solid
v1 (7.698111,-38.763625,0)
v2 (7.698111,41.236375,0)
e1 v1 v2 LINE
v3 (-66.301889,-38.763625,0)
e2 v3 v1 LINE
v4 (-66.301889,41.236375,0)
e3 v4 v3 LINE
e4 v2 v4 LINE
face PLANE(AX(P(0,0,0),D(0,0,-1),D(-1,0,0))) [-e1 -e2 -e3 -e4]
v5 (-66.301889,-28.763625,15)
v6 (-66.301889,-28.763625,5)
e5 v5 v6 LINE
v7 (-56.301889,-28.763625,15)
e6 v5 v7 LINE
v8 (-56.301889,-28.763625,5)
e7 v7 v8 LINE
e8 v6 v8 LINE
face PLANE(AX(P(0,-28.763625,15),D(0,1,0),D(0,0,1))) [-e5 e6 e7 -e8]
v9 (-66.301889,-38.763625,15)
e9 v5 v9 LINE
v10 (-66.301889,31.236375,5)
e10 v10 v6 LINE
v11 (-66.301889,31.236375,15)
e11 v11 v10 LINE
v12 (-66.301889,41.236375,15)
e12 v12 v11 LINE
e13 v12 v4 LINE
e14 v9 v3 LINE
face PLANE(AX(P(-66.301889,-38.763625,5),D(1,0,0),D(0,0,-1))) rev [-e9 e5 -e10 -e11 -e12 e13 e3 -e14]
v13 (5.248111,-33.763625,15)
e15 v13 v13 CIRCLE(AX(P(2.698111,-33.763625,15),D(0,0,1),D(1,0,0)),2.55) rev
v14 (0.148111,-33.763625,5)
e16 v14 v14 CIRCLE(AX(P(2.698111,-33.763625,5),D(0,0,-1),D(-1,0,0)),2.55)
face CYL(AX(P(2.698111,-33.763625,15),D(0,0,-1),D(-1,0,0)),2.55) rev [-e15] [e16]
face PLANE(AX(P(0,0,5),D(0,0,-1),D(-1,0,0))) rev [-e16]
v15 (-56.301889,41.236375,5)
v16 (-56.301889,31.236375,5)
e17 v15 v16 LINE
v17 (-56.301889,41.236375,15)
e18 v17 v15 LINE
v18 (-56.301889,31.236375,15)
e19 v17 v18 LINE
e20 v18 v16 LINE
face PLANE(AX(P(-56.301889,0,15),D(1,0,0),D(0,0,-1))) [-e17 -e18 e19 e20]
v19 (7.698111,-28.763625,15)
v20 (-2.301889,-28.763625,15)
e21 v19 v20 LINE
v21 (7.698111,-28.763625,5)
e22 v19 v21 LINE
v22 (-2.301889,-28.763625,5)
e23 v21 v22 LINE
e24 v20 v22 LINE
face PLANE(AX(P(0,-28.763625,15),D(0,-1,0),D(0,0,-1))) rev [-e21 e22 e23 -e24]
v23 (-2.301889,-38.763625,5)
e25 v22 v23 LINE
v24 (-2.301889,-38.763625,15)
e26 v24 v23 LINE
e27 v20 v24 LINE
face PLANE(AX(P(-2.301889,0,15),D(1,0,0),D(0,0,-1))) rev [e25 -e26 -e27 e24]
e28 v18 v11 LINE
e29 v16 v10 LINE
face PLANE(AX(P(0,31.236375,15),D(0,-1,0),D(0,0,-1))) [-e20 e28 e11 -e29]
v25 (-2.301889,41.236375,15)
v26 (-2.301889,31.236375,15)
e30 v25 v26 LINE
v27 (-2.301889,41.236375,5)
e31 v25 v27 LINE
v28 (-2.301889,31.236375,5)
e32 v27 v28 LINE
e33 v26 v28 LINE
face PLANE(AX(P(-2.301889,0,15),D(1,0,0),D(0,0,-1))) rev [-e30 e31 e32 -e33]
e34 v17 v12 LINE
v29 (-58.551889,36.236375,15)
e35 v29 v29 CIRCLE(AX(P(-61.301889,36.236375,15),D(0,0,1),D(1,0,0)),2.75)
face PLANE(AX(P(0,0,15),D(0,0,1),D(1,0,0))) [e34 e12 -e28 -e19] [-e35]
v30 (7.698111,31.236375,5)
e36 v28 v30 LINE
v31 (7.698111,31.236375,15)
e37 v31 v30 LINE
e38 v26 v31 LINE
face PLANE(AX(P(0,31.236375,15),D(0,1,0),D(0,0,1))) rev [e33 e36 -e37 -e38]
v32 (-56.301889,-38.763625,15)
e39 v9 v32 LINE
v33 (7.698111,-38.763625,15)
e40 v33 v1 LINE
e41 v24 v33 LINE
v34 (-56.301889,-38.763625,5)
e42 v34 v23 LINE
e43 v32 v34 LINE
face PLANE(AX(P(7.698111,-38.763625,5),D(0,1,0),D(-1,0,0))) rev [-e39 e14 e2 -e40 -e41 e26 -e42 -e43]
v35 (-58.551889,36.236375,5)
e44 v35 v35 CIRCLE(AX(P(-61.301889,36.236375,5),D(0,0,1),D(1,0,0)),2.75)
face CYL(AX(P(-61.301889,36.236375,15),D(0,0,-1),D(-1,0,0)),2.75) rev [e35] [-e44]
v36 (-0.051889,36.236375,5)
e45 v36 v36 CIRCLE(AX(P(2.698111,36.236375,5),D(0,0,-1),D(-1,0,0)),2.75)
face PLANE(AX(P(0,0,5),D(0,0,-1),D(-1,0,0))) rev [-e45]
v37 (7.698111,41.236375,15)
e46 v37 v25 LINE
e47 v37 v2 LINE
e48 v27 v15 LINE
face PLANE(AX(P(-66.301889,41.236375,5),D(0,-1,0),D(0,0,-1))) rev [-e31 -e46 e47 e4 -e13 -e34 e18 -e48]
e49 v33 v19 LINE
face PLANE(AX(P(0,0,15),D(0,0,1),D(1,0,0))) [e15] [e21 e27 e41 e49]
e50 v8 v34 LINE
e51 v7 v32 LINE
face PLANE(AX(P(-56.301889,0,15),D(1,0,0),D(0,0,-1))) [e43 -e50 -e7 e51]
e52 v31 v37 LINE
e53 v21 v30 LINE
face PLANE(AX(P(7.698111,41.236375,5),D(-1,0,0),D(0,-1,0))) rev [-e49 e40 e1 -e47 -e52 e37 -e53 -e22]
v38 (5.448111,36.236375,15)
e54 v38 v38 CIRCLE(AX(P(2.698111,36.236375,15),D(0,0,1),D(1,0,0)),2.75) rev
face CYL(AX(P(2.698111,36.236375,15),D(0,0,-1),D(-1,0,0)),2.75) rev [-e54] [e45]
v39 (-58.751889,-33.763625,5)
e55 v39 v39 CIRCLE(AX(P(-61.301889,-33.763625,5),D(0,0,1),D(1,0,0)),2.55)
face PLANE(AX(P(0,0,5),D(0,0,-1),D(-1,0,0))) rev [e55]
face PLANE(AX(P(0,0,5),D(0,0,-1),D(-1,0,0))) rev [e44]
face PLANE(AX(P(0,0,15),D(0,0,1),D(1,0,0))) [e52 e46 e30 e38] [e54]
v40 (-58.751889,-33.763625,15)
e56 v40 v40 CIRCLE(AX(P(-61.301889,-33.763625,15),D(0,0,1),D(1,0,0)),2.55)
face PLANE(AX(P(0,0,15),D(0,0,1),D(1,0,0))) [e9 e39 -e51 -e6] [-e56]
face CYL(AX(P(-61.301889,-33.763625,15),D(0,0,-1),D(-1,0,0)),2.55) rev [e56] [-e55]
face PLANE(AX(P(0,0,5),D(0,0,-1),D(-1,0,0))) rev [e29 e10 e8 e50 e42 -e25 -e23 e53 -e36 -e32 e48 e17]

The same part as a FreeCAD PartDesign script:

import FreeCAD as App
import Part
import Sketcher
from FreeCAD import Vector


def add_polygon(sketch, points):
    """Adds a closed chain of lines whose ends are joined by coincident constraints."""
    first, n = sketch.GeometryCount, len(points)
    for a, b in zip(points, points[1:] + points[:1]):
        sketch.addGeometry(Part.LineSegment(App.Vector(*a, 0), App.Vector(*b, 0)), False)
    for i in range(n):
        sketch.addConstraint(Sketcher.Constraint("Coincident", first + i, 2, first + (i + 1) % n, 1))

doc = App.newDocument("Part")
body = doc.addObject("PartDesign::Body", "Body")

sketch1 = body.newObject("Sketcher::SketchObject", "Sketch")
sketch1.AttachmentSupport = (doc.getObject("XY_Plane"), [""])
sketch1.MapMode = "FlatFace"
add_polygon(sketch1, [(-66, 41), (-66, -39), (8, -39), (8, 41)])
sketch1.addConstraint([
    Sketcher.Constraint("Vertical", 0),
    Sketcher.Constraint("Horizontal", 1),
    Sketcher.Constraint("Vertical", 2),
    Sketcher.Constraint("Horizontal", 3),
    Sketcher.Constraint("DistanceX", 1, 1, 1, 2, 74.0),
    Sketcher.Constraint("DistanceY", 0, 2, 0, 1, 80.0),
    Sketcher.Constraint("DistanceX", 0, 2, -1, 1, 66.301889),
    Sketcher.Constraint("DistanceY", 0, 2, -1, 1, 38.763625),
])
pad1 = body.newObject("PartDesign::Pad", "Pad")
pad1.Profile = sketch1
pad1.Length = 5

sketch2 = body.newObject("Sketcher::SketchObject", "Sketch001")
sketch2.AttachmentSupport = (doc.getObject("XY_Plane"), [""])
sketch2.MapMode = "FlatFace"
sketch2.AttachmentOffset = App.Placement(Vector(0, 0, 5), App.Rotation())
add_polygon(sketch2, [(-66.3, 41.2), (-66.3, 31.2), (-56.3, 31.2), (-56.3, 41.2)])
sketch2.addGeometry(Part.Circle(Vector(-61.3, 36.2, 0), Vector(0, 0, 1), 2.8), False)
add_polygon(sketch2, [(-2.3, 41.2), (-2.3, 31.2), (7.7, 31.2), (7.7, 41.2)])
sketch2.addGeometry(Part.Circle(Vector(2.7, 36.2, 0), Vector(0, 0, 1), 2.8), False)
add_polygon(sketch2, [(-2.3, -28.8), (-2.3, -38.8), (7.7, -38.8), (7.7, -28.8)])
sketch2.addGeometry(Part.Circle(Vector(2.7, -33.8, 0), Vector(0, 0, 1), 2.5), False)
add_polygon(sketch2, [(-66.3, -28.8), (-66.3, -38.8), (-56.3, -38.8), (-56.3, -28.8)])
sketch2.addGeometry(Part.Circle(Vector(-61.3, -33.8, 0), Vector(0, 0, 1), 2.5), False)
sketch2.addConstraint([
    Sketcher.Constraint("Vertical", 0),
    Sketcher.Constraint("Horizontal", 1),
    Sketcher.Constraint("Vertical", 2),
    Sketcher.Constraint("Horizontal", 3),
    Sketcher.Constraint("Vertical", 5),
    Sketcher.Constraint("Horizontal", 6),
    Sketcher.Constraint("Vertical", 7),
    Sketcher.Constraint("Horizontal", 8),
    Sketcher.Constraint("Vertical", 10),
    Sketcher.Constraint("Horizontal", 11),
    Sketcher.Constraint("Vertical", 12),
    Sketcher.Constraint("Horizontal", 13),
    Sketcher.Constraint("Vertical", 15),
    Sketcher.Constraint("Horizontal", 16),
    Sketcher.Constraint("Vertical", 17),
    Sketcher.Constraint("Horizontal", 18),
    Sketcher.Constraint("Equal", 4, 9),
    Sketcher.Constraint("Equal", 14, 19),
    Sketcher.Constraint("Horizontal", 4, 3, 9, 3),
    Sketcher.Constraint("Horizontal", 14, 3, 19, 3),
    Sketcher.Constraint("Horizontal", 1, 2, 5, 2),
    Sketcher.Constraint("Horizontal", 3, 2, 7, 2),
    Sketcher.Constraint("Horizontal", 11, 2, 15, 2),
    Sketcher.Constraint("Horizontal", 13, 2, 17, 2),
    Sketcher.Constraint("Vertical", 9, 3, 14, 3),
    Sketcher.Constraint("Vertical", 4, 3, 19, 3),
    Sketcher.Constraint("Vertical", 8, 2, 10, 2),
    Sketcher.Constraint("Vertical", 7, 2, 11, 2),
    Sketcher.Constraint("Vertical", 3, 2, 15, 2),
    Sketcher.Constraint("Vertical", 2, 2, 16, 2),
    Sketcher.Constraint("Equal", 3, 6),
    Sketcher.Constraint("Equal", 18, 0),
    Sketcher.Constraint("Equal", 7, 10),
    Sketcher.Constraint("Diameter", 4, 5.5),
    Sketcher.Constraint("Diameter", 14, 5.1),
    Sketcher.Constraint("DistanceX", 1, 1, 1, 2, 10.0),
    Sketcher.Constraint("DistanceX", 4, 3, 9, 3, 64.0),
    Sketcher.Constraint("DistanceY", 14, 3, 9, 3, 70.0),
    Sketcher.Constraint("DistanceX", 0, 2, 4, 3, 5.0),
    Sketcher.Constraint("DistanceY", 0, 2, 4, 3, 5.0),
    Sketcher.Constraint("DistanceX", 5, 2, 9, 3, 5.0),
    Sketcher.Constraint("DistanceY", 10, 2, 14, 3, 5.0),
    Sketcher.Constraint("DistanceX", 4, 3, -1, 1, 61.301889),
    Sketcher.Constraint("DistanceY", -1, 1, 4, 3, 36.236375),
])
pad2 = body.newObject("PartDesign::Pad", "Pad001")
pad2.Profile = sketch2
pad2.Length = 10

doc.recompute()
